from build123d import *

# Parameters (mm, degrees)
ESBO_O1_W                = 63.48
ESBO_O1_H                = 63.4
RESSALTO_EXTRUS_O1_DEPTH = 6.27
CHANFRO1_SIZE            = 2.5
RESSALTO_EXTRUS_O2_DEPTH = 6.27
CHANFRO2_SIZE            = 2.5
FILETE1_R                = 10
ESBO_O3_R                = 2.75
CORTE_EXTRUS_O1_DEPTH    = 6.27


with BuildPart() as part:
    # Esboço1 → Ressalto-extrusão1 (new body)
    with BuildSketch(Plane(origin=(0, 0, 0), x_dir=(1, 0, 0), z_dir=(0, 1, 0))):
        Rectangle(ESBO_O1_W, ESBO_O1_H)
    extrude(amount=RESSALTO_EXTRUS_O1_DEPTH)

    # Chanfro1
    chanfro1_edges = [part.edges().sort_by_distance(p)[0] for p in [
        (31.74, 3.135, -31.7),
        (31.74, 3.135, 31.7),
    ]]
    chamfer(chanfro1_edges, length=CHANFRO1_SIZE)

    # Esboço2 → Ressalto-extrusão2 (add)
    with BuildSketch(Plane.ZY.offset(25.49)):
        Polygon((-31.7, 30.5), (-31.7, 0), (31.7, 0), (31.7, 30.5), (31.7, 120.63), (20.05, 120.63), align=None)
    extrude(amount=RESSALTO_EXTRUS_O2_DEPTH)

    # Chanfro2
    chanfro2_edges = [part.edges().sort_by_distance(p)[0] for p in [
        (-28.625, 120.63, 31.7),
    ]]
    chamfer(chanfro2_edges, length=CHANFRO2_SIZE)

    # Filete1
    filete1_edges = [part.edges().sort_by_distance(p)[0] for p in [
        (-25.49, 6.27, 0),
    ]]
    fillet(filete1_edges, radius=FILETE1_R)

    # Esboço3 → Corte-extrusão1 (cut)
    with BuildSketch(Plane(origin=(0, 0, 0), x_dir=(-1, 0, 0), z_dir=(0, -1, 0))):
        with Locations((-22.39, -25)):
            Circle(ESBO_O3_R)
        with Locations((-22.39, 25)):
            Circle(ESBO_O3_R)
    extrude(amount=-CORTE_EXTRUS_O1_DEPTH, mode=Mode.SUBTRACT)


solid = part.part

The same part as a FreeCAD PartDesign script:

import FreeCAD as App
import Part
import Sketcher
from FreeCAD import Vector


def edges_at(feature, points):
    """Names of the edges that pass closest to the given points."""
    edges = feature.Shape.Edges
    near = lambda p: min(range(len(edges)), key=lambda i: edges[i].distToShape(Part.Vertex(*p))[0])
    return sorted({f"Edge{near(p) + 1}" for p in points})


def add_polygon(sketch, points):
    """Adds a closed chain of lines whose ends are joined by coincident constraints."""
    first, n = sketch.GeometryCount, len(points)
    for a, b in zip(points, points[1:] + points[:1]):
        sketch.addGeometry(Part.LineSegment(App.Vector(*a, 0), App.Vector(*b, 0)), False)
    for i in range(n):
        sketch.addConstraint(Sketcher.Constraint("Coincident", first + i, 2, first + (i + 1) % n, 1))

doc = App.newDocument("Part")
body = doc.addObject("PartDesign::Body", "Body")

# Sketch on XZ plane
sketch1 = body.newObject("Sketcher::SketchObject", "Sketch")
sketch1.AttachmentSupport = (doc.getObject("XZ_Plane"), [""])
sketch1.MapMode = "FlatFace"
add_polygon(sketch1, [(-31.74, -31.7), (-31.74, 31.7), (31.74, 31.7), (31.74, -31.7)])  # lines 0-3
sketch1.addConstraint([
    Sketcher.Constraint("Vertical", 0),
    Sketcher.Constraint("Horizontal", 1),
    Sketcher.Constraint("Vertical", 2),
    Sketcher.Constraint("Horizontal", 3),
    Sketcher.Constraint("Symmetric", 0, 2, 2, 2, -1, 1),
    Sketcher.Constraint("DistanceY", 0, 1, 0, 2, 63.4),
    Sketcher.Constraint("DistanceX", 1, 1, 1, 2, 63.48),
])
pad1 = body.newObject("PartDesign::Pad", "Pad")
pad1.Profile = sketch1
pad1.Length = 6.27
pad1.Reversed = True
doc.recompute()

chamfer = body.newObject("PartDesign::Chamfer", "Chamfer")
chamfer.Base = (pad1, edges_at(pad1, [(31.74, 3.135, -31.7), (31.74, 3.135, 31.7)]))
chamfer.Size = 2.5

# Sketch on YZ plane
sketch2 = body.newObject("Sketcher::SketchObject", "Sketch001")
sketch2.AttachmentSupport = (doc.getObject("YZ_Plane"), [""])
sketch2.MapMode = "FlatFace"
sketch2.AttachmentOffset = App.Placement(Vector(0, 0, -25.49), App.Rotation())
add_polygon(sketch2, [(30.5, -31.7), (0, -31.7), (0, 31.7), (120.63, 31.7), (120.63, 20.05)])  # lines 0-4
sketch2.addConstraint([
    Sketcher.Constraint("Horizontal", 0),
    Sketcher.Constraint("Vertical", 1),
    Sketcher.Constraint("Horizontal", 2),
    Sketcher.Constraint("Vertical", 3),
    Sketcher.Constraint("Symmetric", 0, 2, 1, 2, -1, 1),
    Sketcher.Constraint("DistanceX", 0, 2, 0, 1, 30.5),
    Sketcher.Constraint("DistanceY", 1, 1, 1, 2, 63.4),
    Sketcher.Constraint("DistanceX", 2, 1, 2, 2, 120.63),
    Sketcher.Constraint("DistanceY", 3, 2, 3, 1, 11.65),
])
pad2 = body.newObject("PartDesign::Pad", "Pad001")
pad2.Profile = sketch2
pad2.Length = 6.27
pad2.Reversed = True
doc.recompute()

chamfer2 = body.newObject("PartDesign::Chamfer", "Chamfer001")
chamfer2.Base = (pad2, edges_at(pad2, [(-28.625, 120.63, 31.7)]))
chamfer2.Size = 2.5
doc.recompute()

fillet = body.newObject("PartDesign::Fillet", "Fillet")
fillet.Base = (chamfer2, edges_at(chamfer2, [(-25.49, 6.27, 0)]))
fillet.Radius = 10

# Sketch on XZ plane
sketch3 = body.newObject("Sketcher::SketchObject", "Sketch002")
sketch3.AttachmentSupport = (doc.getObject("XZ_Plane"), [""])
sketch3.MapMode = "FlatFace"
sketch3.addGeometry([
    Part.Circle(Vector(22.39, 25, 0), Vector(0, 0, 1), 2.75),
    Part.Circle(Vector(22.39, -25, 0), Vector(0, 0, 1), 2.75),
], False)
sketch3.addConstraint([
    Sketcher.Constraint("Equal", 0, 1),
    Sketcher.Constraint("Symmetric", 0, 3, 1, 3, -1),
    Sketcher.Constraint("Diameter", 0, 5.5),
    Sketcher.Constraint("DistanceY", -1, 1, 0, 3, 25.0),
    Sketcher.Constraint("DistanceX", -1, 1, 0, 3, 22.39),
])
pocket1 = body.newObject("PartDesign::Pocket", "Pocket")
pocket1.Profile = sketch3
pocket1.Length = 6.27

doc.recompute()
